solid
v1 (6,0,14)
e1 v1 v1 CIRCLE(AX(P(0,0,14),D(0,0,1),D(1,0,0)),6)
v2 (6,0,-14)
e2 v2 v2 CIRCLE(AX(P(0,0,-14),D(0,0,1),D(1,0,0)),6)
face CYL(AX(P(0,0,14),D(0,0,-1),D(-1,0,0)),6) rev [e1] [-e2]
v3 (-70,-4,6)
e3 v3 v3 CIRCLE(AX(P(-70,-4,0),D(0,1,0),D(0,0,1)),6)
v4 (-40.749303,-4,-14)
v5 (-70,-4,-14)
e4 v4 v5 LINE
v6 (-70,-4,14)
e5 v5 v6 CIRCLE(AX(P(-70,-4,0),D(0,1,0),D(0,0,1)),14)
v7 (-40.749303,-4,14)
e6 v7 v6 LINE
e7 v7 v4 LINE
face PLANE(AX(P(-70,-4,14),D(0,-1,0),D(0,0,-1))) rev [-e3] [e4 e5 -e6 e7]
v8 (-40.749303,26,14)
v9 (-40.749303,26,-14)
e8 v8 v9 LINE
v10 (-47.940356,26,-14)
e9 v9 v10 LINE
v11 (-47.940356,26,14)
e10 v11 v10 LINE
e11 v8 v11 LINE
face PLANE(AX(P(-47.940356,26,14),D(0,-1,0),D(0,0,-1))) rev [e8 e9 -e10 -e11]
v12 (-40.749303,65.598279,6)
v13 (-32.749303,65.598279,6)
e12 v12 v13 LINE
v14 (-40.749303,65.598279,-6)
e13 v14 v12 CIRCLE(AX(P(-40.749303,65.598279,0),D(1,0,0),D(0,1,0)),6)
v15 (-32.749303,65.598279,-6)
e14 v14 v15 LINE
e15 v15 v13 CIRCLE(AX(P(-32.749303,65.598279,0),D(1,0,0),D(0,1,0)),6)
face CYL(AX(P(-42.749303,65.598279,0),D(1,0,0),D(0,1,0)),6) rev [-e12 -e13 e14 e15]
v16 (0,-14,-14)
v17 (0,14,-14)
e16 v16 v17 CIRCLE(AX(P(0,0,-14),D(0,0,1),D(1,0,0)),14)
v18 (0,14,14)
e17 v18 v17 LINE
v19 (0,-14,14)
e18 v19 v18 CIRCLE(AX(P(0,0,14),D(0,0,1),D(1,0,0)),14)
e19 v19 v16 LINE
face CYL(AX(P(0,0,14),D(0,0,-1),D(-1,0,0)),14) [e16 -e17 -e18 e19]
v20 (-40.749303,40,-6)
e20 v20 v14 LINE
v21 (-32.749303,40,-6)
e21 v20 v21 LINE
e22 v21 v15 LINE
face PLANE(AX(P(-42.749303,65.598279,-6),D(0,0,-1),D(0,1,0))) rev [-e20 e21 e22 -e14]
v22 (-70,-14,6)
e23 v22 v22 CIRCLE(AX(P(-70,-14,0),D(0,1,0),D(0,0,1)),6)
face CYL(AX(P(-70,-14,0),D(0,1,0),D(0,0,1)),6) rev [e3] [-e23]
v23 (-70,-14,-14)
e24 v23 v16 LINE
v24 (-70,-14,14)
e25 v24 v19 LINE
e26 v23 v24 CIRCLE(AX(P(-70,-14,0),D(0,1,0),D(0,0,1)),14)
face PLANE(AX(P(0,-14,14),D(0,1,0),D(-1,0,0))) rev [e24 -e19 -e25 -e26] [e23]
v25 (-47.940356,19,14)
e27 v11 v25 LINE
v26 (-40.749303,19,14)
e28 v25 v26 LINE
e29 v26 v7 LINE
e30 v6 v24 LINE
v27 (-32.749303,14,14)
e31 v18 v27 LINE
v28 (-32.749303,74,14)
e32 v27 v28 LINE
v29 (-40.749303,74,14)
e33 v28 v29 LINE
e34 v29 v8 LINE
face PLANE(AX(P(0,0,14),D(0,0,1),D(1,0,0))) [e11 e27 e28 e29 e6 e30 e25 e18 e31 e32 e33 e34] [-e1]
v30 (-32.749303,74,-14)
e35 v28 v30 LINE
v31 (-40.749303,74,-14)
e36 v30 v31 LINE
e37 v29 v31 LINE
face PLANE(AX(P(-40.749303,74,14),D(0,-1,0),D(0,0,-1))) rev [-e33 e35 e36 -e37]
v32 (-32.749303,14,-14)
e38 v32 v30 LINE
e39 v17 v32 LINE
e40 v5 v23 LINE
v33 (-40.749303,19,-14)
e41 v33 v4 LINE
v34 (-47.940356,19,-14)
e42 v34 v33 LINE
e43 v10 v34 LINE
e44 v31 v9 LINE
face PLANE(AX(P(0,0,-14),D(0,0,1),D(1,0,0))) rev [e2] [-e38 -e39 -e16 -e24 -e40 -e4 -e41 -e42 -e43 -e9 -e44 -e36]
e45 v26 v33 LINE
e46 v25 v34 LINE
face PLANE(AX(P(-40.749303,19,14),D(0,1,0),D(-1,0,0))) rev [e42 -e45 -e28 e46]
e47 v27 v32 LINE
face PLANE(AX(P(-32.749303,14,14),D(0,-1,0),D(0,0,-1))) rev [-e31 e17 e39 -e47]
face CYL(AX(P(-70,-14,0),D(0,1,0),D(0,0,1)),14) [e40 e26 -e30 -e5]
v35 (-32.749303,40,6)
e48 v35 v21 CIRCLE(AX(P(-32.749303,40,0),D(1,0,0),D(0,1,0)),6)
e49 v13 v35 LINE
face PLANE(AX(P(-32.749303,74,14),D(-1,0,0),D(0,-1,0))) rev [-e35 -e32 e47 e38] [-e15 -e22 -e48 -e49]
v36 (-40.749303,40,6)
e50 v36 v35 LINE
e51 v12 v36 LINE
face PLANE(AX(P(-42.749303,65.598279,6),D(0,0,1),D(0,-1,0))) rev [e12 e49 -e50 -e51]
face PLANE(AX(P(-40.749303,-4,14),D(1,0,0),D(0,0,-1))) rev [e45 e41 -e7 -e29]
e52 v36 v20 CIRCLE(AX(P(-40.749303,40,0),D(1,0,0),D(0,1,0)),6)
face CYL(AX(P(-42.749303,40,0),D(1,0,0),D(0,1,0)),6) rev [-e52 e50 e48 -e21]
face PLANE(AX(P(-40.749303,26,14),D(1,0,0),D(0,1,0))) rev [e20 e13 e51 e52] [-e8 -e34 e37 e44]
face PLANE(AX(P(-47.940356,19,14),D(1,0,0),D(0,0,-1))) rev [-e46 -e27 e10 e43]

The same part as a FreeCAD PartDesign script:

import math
import FreeCAD as App
import Part
import Sketcher

doc = App.newDocument("Part")
body = doc.addObject("PartDesign::Body", "Body")

sketch1 = body.newObject("Sketcher::SketchObject", "Sketch")
sketch1.AttachmentSupport = (doc.getObject("XY_Plane"), [""])
sketch1.MapMode = "FlatFace"
sketch1.addGeometry([
    Part.LineSegment(App.Vector(-70, -14, 0), App.Vector(0, -14, 0)),
    Part.ArcOfCircle(Part.Circle(App.Vector(0, 0, 0), App.Vector(0, 0, 1), 14), math.radians(-90), math.radians(90)),
    Part.LineSegment(App.Vector(0, 14, 0), App.Vector(-33, 14, 0)),
    Part.LineSegment(App.Vector(-33, 14, 0), App.Vector(-33, 74, 0)),
    Part.LineSegment(App.Vector(-33, 74, 0), App.Vector(-41, 74, 0)),
    Part.LineSegment(App.Vector(-41, 74, 0), App.Vector(-41, 26, 0)),
    Part.LineSegment(App.Vector(-41, 26, 0), App.Vector(-48, 26, 0)),
    Part.LineSegment(App.Vector(-48, 26, 0), App.Vector(-48, 19, 0)),
    Part.LineSegment(App.Vector(-48, 19, 0), App.Vector(-41, 19, 0)),
    Part.LineSegment(App.Vector(-41, 19, 0), App.Vector(-41, -4, 0)),
    Part.LineSegment(App.Vector(-41, -4, 0), App.Vector(-70, -4, 0)),
    Part.LineSegment(App.Vector(-70, -4, 0), App.Vector(-70, -14, 0)),
    Part.Circle(App.Vector(0, 0, 0), App.Vector(0, 0, 1), 6),
], False)
sketch1.addConstraint([
    Sketcher.Constraint("Tangent", 0, 2, 1, 1),
    Sketcher.Constraint("Tangent", 1, 2, 2, 1),
    Sketcher.Constraint("Coincident", 2, 2, 3, 1),
    Sketcher.Constraint("Coincident", 3, 2, 4, 1),
    Sketcher.Constraint("Coincident", 4, 2, 5, 1),
    Sketcher.Constraint("Coincident", 5, 2, 6, 1),
    Sketcher.Constraint("Coincident", 6, 2, 7, 1),
    Sketcher.Constraint("Coincident", 7, 2, 8, 1),
    Sketcher.Constraint("Coincident", 8, 2, 9, 1),
    Sketcher.Constraint("Coincident", 9, 2, 10, 1),
    Sketcher.Constraint("Coincident", 10, 2, 11, 1),
    Sketcher.Constraint("Coincident", 11, 2, 0, 1),
    Sketcher.Constraint("Horizontal", 0),
    Sketcher.Constraint("Horizontal", 2),
    Sketcher.Constraint("Vertical", 3),
    Sketcher.Constraint("Horizontal", 4),
    Sketcher.Constraint("Vertical", 5),
    Sketcher.Constraint("Horizontal", 6),
    Sketcher.Constraint("Vertical", 7),
    Sketcher.Constraint("Horizontal", 8),
    Sketcher.Constraint("Vertical", 9),
    Sketcher.Constraint("Horizontal", 10),
    Sketcher.Constraint("Vertical", 11),
    Sketcher.Constraint("Coincident", 1, 3, -1, 1),
    Sketcher.Constraint("Coincident", 12, 3, -1, 1),
    Sketcher.Constraint("Vertical", 5, 2, 8, 2),
    Sketcher.Constraint("Diameter", 12, 12.0),
    Sketcher.Constraint("Radius", 1, 14.0),
    Sketcher.Constraint("DistanceX", 0, 1, 0, 2, 70.0),
    Sketcher.Constraint("DistanceX", 4, 2, 4, 1, 8.0),
    Sketcher.Constraint("DistanceY", 3, 1, 3, 2, 60.0),
    Sketcher.Constraint("DistanceY", 5, 2, 5, 1, 48.0),
    Sketcher.Constraint("DistanceY", 7, 2, 7, 1, 7.0),
    Sketcher.Constraint("DistanceY", 9, 2, 9, 1, 23.0),
    Sketcher.Constraint("DistanceX", 2, 2, 2, 1, 32.749303),
    Sketcher.Constraint("DistanceX", 6, 2, 6, 1, 7.191053),
])
pad1 = body.newObject("PartDesign::Pad", "Pad")
pad1.Profile = sketch1
pad1.Length = 28
pad1.Midplane = True

sketch2 = body.newObject("Sketcher::SketchObject", "Sketch001")
sketch2.AttachmentSupport = (doc.getObject("XZ_Plane"), [""])
sketch2.MapMode = "FlatFace"
sketch2.AttachmentOffset = App.Placement(App.Vector(0, 0, 4), App.Rotation())
sketch2.addGeometry([
    Part.LineSegment(App.Vector(-70, 14, 0), App.Vector(-70, -14, 0)),
    Part.ArcOfCircle(Part.Circle(App.Vector(-70, 0, 0), App.Vector(0, 0, 1), 14), math.radians(90), math.radians(270)),
], False)
sketch2.addConstraint([
    Sketcher.Constraint("Coincident", 0, 1, 1, 1),
    Sketcher.Constraint("Coincident", 1, 2, 0, 2),
    Sketcher.Constraint("Vertical", 0),
    Sketcher.Constraint("PointOnObject", 1, 3, -1),
    Sketcher.Constraint("Vertical", 1, 3, 0, 1),
    Sketcher.Constraint("Radius", 1, 14.0),
    Sketcher.Constraint("DistanceX", 1, 3, -1, 1, 70.0),
])
pad2 = body.newObject("PartDesign::Pad", "Pad001")
pad2.Profile = sketch2
pad2.Length = 10

sketch3 = body.newObject("Sketcher::SketchObject", "Sketch002")
sketch3.AttachmentSupport = (doc.getObject("XZ_Plane"), [""])
sketch3.MapMode = "FlatFace"
sketch3.AttachmentOffset = App.Placement(App.Vector(0, 0, 4), App.Rotation())
sketch3.addGeometry(Part.Circle(App.Vector(-70, 0, 0), App.Vector(0, 0, 1), 6), False)
sketch3.addConstraint([
    Sketcher.Constraint("PointOnObject", 0, 3, -1),
    Sketcher.Constraint("Diameter", 0, 12.0),
    Sketcher.Constraint("DistanceX", 0, 3, -1, 1, 70.0),
])
pocket1 = body.newObject("PartDesign::Pocket", "Pocket")
pocket1.Profile = sketch3
pocket1.Length = 10
pocket1.Reversed = True

sketch4 = body.newObject("Sketcher::SketchObject", "Sketch003")
sketch4.AttachmentSupport = (doc.getObject("YZ_Plane"), [""])
sketch4.MapMode = "FlatFace"
sketch4.AttachmentOffset = App.Placement(App.Vector(0, 0, -32.749303), App.Rotation())
sketch4.addGeometry([
    Part.LineSegment(App.Vector(66, 6, 0), App.Vector(40, 6, 0)),
    Part.ArcOfCircle(Part.Circle(App.Vector(40, 0, 0), App.Vector(0, 0, 1), 6), math.radians(90), math.radians(270)),
    Part.LineSegment(App.Vector(40, -6, 0), App.Vector(66, -6, 0)),
    Part.ArcOfCircle(Part.Circle(App.Vector(66, 0, 0), App.Vector(0, 0, 1), 6), math.radians(-90), math.radians(90)),
], False)
sketch4.addConstraint([
    Sketcher.Constraint("Tangent", 0, 2, 1, 1),
    Sketcher.Constraint("Tangent", 1, 2, 2, 1),
    Sketcher.Constraint("Tangent", 2, 2, 3, 1),
    Sketcher.Constraint("Tangent", 3, 2, 0, 1),
    Sketcher.Constraint("Horizontal", 0),
    Sketcher.Constraint("Horizontal", 2),
    Sketcher.Constraint("PointOnObject", 1, 3, -1),
    Sketcher.Constraint("Radius", 1, 6.0),
    Sketcher.Constraint("DistanceX", -1, 1, 1, 3, 40.0),
    Sketcher.Constraint("DistanceX", 0, 2, 0, 1, 25.598279),
])
pocket2 = body.newObject("PartDesign::Pocket", "Pocket001")
pocket2.Profile = sketch4
pocket2.Length = 10

doc.recompute()
